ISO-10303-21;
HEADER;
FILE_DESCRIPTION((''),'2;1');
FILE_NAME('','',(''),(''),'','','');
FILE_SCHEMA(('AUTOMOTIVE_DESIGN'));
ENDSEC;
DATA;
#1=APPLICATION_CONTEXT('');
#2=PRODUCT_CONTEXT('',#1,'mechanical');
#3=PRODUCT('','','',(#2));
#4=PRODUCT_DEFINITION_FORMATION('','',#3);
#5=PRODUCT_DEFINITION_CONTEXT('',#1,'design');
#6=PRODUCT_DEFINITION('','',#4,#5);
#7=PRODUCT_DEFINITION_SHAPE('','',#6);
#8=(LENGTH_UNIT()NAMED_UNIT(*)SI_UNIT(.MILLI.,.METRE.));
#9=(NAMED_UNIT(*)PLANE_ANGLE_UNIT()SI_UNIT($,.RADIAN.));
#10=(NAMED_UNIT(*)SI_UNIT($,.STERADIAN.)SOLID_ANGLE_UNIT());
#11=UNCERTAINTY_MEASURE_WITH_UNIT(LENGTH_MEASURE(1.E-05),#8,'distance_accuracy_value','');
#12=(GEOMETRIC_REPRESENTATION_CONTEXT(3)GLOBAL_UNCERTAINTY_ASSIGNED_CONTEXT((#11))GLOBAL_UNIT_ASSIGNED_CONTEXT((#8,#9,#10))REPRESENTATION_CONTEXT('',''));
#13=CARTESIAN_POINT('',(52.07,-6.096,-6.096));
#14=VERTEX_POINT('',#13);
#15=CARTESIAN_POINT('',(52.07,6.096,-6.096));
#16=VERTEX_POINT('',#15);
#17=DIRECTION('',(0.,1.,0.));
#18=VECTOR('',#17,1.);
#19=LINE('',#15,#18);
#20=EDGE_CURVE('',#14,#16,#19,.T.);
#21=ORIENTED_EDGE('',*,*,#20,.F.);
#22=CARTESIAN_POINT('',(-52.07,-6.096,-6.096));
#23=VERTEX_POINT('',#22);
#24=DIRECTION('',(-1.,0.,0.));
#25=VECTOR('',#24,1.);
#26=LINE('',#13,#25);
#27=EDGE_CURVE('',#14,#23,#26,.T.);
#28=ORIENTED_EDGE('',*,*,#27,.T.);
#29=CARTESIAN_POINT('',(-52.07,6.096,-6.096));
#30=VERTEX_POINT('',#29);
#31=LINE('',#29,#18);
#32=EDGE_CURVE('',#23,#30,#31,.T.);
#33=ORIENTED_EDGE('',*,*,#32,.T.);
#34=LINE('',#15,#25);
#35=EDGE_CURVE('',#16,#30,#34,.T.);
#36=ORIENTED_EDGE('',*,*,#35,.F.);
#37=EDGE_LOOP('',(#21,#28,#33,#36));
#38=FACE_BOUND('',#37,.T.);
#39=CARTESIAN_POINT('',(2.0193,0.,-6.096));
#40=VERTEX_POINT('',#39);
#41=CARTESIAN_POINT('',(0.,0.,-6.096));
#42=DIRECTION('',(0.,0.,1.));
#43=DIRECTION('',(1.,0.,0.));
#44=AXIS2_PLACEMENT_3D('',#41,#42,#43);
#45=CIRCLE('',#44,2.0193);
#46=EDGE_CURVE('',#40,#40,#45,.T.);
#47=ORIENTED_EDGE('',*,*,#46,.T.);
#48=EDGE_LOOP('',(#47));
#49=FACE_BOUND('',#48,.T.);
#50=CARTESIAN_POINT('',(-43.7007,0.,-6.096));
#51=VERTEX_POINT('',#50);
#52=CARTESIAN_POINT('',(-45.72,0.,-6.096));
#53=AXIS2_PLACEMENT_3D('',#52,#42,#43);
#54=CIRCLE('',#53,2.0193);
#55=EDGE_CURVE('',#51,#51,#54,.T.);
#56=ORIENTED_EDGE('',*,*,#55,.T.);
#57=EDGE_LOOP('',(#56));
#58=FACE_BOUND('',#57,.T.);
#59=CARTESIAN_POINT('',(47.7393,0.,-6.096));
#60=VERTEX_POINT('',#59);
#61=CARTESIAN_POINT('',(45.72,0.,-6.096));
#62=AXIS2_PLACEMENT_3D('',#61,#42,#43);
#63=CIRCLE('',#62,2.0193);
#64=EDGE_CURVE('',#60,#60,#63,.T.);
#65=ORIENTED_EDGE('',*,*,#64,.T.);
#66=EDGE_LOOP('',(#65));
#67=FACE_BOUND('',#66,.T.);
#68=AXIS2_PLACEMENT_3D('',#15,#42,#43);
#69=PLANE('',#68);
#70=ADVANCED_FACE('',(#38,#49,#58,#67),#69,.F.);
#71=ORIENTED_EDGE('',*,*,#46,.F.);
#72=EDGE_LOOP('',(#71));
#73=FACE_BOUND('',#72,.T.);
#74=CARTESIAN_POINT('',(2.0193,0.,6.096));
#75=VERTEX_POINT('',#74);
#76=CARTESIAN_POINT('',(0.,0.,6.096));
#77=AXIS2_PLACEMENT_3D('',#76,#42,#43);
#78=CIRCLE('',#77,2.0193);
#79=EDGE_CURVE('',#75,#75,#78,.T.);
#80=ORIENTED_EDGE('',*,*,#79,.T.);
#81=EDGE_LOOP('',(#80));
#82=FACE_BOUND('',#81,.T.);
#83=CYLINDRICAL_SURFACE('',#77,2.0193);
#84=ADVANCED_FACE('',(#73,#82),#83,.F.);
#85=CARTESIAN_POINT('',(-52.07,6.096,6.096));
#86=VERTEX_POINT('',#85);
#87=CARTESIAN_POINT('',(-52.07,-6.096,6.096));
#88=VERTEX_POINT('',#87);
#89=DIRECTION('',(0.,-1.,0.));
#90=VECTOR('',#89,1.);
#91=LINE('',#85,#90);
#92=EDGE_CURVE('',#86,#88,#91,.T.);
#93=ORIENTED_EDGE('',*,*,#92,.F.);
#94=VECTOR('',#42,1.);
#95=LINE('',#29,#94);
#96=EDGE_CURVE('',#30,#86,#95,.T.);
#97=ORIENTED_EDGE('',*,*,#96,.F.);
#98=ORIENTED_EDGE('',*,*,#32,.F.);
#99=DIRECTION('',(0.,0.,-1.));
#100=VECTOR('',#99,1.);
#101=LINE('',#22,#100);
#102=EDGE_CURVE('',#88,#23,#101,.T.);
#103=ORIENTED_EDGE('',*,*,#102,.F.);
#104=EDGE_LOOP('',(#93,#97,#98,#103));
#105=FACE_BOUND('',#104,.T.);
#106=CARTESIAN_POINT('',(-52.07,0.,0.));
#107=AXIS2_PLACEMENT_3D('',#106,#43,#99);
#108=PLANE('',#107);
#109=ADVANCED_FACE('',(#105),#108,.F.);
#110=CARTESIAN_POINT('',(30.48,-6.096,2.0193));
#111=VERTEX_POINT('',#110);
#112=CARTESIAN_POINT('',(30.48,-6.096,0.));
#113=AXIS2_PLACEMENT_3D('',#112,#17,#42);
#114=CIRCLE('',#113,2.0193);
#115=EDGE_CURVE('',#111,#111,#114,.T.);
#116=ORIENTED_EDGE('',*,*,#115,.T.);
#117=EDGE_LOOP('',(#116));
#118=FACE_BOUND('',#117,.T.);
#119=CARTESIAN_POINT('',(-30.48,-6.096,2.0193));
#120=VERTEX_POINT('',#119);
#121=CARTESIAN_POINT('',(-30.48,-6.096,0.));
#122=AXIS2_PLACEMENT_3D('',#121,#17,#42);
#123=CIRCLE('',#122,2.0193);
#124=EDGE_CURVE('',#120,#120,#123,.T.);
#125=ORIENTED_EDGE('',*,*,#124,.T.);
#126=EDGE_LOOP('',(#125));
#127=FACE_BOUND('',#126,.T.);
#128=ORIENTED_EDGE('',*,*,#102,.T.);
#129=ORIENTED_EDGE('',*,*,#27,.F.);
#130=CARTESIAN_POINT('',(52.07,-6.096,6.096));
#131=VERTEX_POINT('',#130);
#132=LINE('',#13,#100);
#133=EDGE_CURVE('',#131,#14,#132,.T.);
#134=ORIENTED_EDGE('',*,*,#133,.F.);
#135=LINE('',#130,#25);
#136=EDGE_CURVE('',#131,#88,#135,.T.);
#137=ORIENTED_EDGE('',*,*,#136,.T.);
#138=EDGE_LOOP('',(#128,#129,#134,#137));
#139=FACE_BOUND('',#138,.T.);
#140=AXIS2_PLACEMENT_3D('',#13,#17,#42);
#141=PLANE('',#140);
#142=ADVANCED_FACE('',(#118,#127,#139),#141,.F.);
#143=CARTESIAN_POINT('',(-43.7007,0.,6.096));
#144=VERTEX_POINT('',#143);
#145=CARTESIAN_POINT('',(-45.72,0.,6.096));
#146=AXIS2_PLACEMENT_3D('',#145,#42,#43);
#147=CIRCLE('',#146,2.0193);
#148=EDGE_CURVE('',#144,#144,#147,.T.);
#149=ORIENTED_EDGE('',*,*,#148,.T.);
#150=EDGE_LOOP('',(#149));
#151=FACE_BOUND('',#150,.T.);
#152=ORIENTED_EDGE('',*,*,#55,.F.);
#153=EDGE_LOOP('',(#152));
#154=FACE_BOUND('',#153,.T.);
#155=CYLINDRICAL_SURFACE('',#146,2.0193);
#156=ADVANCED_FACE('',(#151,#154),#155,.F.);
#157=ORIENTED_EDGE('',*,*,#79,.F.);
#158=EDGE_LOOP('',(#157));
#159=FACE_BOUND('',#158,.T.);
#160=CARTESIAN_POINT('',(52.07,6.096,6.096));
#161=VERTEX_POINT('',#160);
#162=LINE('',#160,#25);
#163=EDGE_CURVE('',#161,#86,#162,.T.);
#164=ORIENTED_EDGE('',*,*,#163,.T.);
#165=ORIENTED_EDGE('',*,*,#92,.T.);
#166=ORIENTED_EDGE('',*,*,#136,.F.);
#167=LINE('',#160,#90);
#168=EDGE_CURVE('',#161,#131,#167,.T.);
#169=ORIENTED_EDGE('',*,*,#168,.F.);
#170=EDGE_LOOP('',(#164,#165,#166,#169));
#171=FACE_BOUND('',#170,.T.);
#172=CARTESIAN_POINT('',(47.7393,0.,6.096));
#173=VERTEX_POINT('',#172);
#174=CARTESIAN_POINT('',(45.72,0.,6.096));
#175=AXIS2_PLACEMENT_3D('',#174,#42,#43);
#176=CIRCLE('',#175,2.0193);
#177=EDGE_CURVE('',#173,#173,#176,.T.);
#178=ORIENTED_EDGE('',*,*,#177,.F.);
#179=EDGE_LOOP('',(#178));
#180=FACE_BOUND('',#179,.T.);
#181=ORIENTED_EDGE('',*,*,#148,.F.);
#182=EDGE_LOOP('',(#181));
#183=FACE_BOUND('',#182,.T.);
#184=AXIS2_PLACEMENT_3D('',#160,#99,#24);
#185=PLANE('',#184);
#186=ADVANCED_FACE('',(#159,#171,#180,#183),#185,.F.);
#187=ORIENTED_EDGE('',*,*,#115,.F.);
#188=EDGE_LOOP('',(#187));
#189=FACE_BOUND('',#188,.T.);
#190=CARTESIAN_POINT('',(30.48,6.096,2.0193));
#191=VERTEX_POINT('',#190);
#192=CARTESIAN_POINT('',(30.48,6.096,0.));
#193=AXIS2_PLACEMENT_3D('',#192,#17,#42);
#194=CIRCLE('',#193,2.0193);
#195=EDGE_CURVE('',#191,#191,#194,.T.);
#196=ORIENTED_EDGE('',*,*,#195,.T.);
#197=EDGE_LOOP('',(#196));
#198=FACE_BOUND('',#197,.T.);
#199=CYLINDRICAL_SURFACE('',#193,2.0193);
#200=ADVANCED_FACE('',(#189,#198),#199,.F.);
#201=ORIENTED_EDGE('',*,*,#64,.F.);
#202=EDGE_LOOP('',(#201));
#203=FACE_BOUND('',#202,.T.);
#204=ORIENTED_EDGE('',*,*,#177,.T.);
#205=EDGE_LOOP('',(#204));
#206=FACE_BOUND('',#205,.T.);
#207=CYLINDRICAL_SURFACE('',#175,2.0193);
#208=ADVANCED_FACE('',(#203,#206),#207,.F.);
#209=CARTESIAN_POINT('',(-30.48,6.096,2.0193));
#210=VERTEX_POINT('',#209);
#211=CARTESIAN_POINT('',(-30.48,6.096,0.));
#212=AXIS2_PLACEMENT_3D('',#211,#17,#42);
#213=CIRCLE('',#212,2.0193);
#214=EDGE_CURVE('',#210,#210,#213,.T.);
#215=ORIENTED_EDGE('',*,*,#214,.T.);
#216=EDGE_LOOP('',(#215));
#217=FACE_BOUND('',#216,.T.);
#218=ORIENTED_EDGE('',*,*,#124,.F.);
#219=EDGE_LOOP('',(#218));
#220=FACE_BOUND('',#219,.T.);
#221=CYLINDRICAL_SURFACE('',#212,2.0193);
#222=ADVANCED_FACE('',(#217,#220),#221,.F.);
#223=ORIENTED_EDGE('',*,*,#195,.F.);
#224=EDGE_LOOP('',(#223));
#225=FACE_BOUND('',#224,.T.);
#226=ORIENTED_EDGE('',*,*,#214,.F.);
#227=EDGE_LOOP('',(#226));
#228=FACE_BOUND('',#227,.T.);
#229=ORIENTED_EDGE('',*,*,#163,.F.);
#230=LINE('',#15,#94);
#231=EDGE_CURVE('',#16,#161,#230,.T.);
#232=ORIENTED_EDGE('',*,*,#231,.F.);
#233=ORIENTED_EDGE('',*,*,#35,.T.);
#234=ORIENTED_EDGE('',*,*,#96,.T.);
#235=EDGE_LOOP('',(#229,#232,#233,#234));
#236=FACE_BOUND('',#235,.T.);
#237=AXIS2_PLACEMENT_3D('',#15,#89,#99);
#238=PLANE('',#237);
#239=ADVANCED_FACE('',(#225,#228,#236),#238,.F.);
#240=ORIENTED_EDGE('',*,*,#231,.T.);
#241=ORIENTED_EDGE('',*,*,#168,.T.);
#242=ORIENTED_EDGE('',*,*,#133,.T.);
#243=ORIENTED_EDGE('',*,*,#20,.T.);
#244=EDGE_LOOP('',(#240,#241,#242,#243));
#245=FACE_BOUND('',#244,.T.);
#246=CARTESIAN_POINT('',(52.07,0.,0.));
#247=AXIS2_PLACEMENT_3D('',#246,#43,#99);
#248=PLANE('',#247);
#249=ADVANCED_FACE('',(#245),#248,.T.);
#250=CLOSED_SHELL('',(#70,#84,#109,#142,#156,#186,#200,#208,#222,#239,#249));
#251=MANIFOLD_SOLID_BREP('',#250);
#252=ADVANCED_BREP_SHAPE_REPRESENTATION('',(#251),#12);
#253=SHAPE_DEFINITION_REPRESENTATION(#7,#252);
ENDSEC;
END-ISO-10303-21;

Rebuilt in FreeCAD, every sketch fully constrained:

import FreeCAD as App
import Part
import Sketcher

V = App.Vector
Q = App.Units.Quantity


def add_polygon(sketch, points):
    """Adds a closed chain of lines whose ends are joined by coincident constraints."""
    first, n = sketch.GeometryCount, len(points)
    for a, b in zip(points, points[1:] + points[:1]):
        sketch.addGeometry(Part.LineSegment(App.Vector(*a, 0), App.Vector(*b, 0)), False)
    for i in range(n):
        sketch.addConstraint(Sketcher.Constraint("Coincident", first + i, 2, first + (i + 1) % n, 1))

doc = App.newDocument("Part")
body = doc.addObject("PartDesign::Body", "Body")

sketch1 = body.newObject("Sketcher::SketchObject", "Sketch")
sketch1.AttachmentSupport = (doc.getObject("YZ_Plane"), [""])
sketch1.MapMode = "FlatFace"
add_polygon(sketch1, [(6, -6), (6, 6), (-6, 6), (-6, -6)])
sketch1.addConstraint([
    Sketcher.Constraint("Vertical", 0),
    Sketcher.Constraint("Horizontal", 1),
    Sketcher.Constraint("Vertical", 2),
    Sketcher.Constraint("Horizontal", 3),
    Sketcher.Constraint("Symmetric", 0, 2, 2, 2, -1, 1),
    Sketcher.Constraint("Equal", 3, 0),
    Sketcher.Constraint("DistanceX", 1, 2, 1, 1, Q("0.48 in")),
])
pad1 = body.newObject("PartDesign::Pad", "Pad")
pad1.Profile = sketch1
pad1.Length = Q("4.1 in")
pad1.Midplane = True

sketch2 = body.newObject("Sketcher::SketchObject", "Sketch001")
sketch2.AttachmentSupport = (doc.getObject("XY_Plane"), [""])
sketch2.MapMode = "FlatFace"
sketch2.AttachmentOffset = App.Placement(V(0, 0, 0.24 * 25.4), App.Rotation())
sketch2.addGeometry([
    Part.Circle(V(-45.7, 0, 0), V(0, 0, 1), 2),
    Part.Circle(V(45.7, 0, 0), V(0, 0, 1), 2),
    Part.Circle(V(0, 0, 0), V(0, 0, 1), 2),
], False)
sketch2.addConstraint([
    Sketcher.Constraint("Coincident", 2, 3, -1, 1),
    Sketcher.Constraint("Equal", 0, 1),
    Sketcher.Constraint("Equal", 1, 2),
    Sketcher.Constraint("Symmetric", 0, 3, 1, 3, -1, 1),
    Sketcher.Constraint("PointOnObject", 0, 3, -1),
    Sketcher.Constraint("Diameter", 0, Q("0.159 in")),
    Sketcher.Constraint("DistanceX", 0, 3, -1, 1, Q("1.8 in")),
])
doc.recompute()
hole = body.newObject("PartDesign::Hole", "Hole")
hole.Profile = sketch2
hole.ThreadType = "None"
hole.Diameter = Q("0.159 in")
hole.DepthType = "ThroughAll"

sketch3 = body.newObject("Sketcher::SketchObject", "Sketch002")
sketch3.AttachmentSupport = (doc.getObject("XZ_Plane"), [""])
sketch3.MapMode = "FlatFace"
sketch3.AttachmentOffset = App.Placement(V(0, 0, -0.24 * 25.4), App.Rotation())
sketch3.addGeometry([
    Part.Circle(V(-30.5, 0, 0), V(0, 0, 1), 2),
    Part.Circle(V(30.5, 0, 0), V(0, 0, 1), 2),
], False)
sketch3.addConstraint([
    Sketcher.Constraint("Equal", 0, 1),
    Sketcher.Constraint("Symmetric", 0, 3, 1, 3, -1, 1),
    Sketcher.Constraint("PointOnObject", 0, 3, -1),
    Sketcher.Constraint("Diameter", 0, Q("0.159 in")),
    Sketcher.Constraint("DistanceX", 0, 3, -1, 1, Q("1.2 in")),
])
doc.recompute()
hole2 = body.newObject("PartDesign::Hole", "Hole001")
hole2.Profile = sketch3
hole2.ThreadType = "None"
hole2.Diameter = Q("0.159 in")
hole2.DepthType = "ThroughAll"
hole2.Reversed = True

doc.recompute()
